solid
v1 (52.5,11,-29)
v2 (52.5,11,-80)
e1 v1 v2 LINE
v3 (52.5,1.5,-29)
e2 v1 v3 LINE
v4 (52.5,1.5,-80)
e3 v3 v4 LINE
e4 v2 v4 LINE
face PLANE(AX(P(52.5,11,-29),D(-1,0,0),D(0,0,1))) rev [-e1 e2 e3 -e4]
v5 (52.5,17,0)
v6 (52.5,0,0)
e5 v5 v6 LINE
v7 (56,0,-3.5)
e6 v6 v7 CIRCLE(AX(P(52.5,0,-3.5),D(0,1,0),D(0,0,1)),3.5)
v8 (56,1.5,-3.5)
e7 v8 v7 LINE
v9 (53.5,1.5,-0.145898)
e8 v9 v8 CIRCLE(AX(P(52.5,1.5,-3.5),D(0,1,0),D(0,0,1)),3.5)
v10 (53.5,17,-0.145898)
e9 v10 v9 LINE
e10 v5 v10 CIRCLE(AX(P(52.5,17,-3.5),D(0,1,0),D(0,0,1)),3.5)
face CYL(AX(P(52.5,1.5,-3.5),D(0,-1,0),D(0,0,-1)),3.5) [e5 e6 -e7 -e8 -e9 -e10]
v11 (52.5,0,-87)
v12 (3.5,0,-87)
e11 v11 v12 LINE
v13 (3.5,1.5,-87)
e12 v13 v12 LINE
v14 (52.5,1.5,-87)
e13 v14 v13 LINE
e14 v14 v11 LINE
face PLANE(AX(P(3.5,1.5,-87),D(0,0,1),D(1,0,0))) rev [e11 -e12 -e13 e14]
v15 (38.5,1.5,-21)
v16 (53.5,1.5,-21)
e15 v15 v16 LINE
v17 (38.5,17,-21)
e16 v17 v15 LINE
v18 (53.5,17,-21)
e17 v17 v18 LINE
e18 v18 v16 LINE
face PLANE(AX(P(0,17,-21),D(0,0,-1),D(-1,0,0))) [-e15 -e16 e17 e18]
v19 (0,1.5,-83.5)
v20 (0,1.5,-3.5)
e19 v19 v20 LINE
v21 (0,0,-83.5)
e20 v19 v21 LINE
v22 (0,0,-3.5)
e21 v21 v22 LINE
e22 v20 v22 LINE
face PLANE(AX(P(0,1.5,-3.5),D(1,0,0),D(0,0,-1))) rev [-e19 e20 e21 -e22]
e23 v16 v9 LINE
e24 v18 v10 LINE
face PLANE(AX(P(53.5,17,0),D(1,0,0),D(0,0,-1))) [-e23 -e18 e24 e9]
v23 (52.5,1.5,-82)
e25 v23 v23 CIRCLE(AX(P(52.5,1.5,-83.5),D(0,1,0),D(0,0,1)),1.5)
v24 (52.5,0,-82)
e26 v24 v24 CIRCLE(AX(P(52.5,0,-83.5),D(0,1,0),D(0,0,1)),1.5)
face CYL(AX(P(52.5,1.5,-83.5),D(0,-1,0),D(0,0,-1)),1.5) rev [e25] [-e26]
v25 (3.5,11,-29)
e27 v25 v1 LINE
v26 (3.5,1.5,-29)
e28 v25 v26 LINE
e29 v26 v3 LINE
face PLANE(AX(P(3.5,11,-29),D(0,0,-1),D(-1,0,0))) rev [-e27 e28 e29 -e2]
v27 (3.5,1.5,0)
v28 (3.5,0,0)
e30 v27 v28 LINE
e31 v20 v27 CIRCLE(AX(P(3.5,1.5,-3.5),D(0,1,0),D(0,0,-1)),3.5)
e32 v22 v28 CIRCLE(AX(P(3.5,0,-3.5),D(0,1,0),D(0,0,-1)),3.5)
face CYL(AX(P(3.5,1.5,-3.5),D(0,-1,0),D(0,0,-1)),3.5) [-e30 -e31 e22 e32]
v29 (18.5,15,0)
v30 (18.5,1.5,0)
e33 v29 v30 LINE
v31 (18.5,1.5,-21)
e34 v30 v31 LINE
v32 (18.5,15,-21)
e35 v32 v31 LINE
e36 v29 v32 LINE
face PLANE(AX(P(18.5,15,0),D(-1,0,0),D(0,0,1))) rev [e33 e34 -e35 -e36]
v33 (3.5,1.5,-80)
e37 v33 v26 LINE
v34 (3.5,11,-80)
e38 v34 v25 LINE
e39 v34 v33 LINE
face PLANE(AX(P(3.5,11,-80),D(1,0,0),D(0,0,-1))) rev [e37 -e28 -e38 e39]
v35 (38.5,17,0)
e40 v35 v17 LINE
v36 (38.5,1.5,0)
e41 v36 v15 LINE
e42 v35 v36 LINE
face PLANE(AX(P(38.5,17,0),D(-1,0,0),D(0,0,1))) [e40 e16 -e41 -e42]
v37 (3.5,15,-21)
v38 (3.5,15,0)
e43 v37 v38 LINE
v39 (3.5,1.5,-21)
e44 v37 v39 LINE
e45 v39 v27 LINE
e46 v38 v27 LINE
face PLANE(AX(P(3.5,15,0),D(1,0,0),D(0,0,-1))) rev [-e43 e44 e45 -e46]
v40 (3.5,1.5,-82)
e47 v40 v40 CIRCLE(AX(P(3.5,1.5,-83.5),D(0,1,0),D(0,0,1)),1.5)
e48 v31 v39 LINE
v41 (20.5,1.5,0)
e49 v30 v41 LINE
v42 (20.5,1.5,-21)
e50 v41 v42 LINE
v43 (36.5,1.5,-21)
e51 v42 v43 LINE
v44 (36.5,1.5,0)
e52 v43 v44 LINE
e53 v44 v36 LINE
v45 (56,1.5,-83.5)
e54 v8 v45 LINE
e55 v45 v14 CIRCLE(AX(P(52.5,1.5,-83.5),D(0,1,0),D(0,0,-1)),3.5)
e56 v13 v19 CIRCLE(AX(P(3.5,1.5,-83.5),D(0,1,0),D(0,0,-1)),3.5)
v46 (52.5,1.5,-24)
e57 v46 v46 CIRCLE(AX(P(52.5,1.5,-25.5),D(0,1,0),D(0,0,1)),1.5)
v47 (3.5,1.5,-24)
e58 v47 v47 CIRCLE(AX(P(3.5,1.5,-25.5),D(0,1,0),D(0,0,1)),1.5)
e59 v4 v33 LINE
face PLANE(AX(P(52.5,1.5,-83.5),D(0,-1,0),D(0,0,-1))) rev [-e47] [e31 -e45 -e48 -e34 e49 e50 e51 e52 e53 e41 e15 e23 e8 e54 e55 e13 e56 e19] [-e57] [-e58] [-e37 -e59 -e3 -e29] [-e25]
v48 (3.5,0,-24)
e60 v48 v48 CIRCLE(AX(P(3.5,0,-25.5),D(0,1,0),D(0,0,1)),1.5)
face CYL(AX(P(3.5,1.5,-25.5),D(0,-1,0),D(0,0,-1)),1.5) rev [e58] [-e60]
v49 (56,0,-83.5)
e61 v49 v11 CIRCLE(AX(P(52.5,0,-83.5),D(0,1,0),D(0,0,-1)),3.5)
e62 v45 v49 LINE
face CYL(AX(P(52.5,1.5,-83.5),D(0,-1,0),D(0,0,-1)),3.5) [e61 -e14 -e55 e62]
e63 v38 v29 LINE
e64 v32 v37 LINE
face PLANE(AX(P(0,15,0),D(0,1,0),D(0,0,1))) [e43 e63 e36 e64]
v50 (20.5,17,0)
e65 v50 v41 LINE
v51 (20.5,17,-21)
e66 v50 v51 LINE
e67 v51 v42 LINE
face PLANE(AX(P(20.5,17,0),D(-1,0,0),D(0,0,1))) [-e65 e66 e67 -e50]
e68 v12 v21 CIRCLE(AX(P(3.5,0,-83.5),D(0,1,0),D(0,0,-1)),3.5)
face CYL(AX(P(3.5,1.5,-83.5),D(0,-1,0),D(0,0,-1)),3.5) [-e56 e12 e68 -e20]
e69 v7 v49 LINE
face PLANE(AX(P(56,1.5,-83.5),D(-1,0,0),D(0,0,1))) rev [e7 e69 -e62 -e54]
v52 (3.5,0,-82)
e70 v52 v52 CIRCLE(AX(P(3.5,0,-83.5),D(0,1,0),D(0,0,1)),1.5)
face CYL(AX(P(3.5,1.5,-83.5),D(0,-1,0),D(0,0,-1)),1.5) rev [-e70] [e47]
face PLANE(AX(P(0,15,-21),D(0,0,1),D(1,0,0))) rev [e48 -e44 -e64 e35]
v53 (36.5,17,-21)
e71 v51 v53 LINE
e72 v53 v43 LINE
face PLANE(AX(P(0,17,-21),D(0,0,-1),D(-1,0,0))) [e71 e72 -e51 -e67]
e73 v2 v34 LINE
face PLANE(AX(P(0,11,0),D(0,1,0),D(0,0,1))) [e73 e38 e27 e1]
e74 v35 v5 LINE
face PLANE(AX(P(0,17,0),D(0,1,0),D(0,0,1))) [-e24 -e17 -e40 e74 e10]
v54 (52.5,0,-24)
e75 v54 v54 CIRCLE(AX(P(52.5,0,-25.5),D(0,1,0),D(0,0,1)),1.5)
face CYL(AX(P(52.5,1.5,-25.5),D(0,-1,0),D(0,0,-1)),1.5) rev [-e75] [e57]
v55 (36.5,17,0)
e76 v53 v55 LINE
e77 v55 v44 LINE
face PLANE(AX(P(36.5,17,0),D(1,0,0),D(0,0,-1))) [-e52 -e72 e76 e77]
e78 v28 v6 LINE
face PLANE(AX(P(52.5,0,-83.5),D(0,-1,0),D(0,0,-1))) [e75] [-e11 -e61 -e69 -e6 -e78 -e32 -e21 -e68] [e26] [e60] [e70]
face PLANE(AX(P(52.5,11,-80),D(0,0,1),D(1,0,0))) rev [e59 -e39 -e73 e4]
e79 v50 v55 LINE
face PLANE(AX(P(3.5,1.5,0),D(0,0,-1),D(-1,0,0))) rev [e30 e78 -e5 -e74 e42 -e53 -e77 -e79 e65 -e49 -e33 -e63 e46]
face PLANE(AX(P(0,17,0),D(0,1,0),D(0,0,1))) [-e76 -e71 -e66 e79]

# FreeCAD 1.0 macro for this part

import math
import FreeCAD as App
import Part
import Sketcher

V = App.Vector
Q = App.Units.Quantity

doc = App.newDocument("Part")
body = doc.addObject("PartDesign::Body", "Body")

# Sketch on XZ plane
sketch1 = body.newObject("Sketcher::SketchObject", "Sketch")
sketch1.AttachmentSupport = (doc.getObject("XZ_Plane"), [""])
sketch1.MapMode = "FlatFace"
sketch1.addGeometry(Part.LineSegment(V(3.5, 0, 0), V(52.5, 0, 0)), False)
sketch1.addGeometry(Part.ArcOfCircle(Part.Circle(V(52.5, -3.5, 0), V(0, 0, 1), 3.5), math.radians(0), math.radians(90)), False)
sketch1.addGeometry(Part.LineSegment(V(56, -3.5, 0), V(56, -83.5, 0)), False)
sketch1.addGeometry(Part.ArcOfCircle(Part.Circle(V(52.5, -83.5, 0), V(0, 0, 1), 3.5), math.radians(-90), math.radians(0)), False)
sketch1.addGeometry(Part.LineSegment(V(52.5, -87, 0), V(3.5, -87, 0)), False)
sketch1.addGeometry(Part.ArcOfCircle(Part.Circle(V(3.5, -83.5, 0), V(0, 0, 1), 3.5), math.radians(-180), math.radians(-90)), False)
sketch1.addGeometry(Part.LineSegment(V(0, -83.5, 0), V(0, -3.5, 0)), False)
sketch1.addGeometry(Part.ArcOfCircle(Part.Circle(V(3.5, -3.5, 0), V(0, 0, 1), 3.5), math.radians(90), math.radians(180)), False)
sketch1.addGeometry(Part.Circle(V(3.5, -25.5, 0), V(0, 0, 1), 1.5), False)
sketch1.addGeometry(Part.Circle(V(52.5, -25.5, 0), V(0, 0, 1), 1.5), False)
sketch1.addGeometry(Part.Circle(V(3.5, -83.5, 0), V(0, 0, 1), 1.5), False)
sketch1.addGeometry(Part.Circle(V(52.5, -83.5, 0), V(0, 0, 1), 1.5), False)
sketch1.addConstraint(Sketcher.Constraint("Tangent", 0, 2, 1, 2))
sketch1.addConstraint(Sketcher.Constraint("Tangent", 1, 1, 2, 1))
sketch1.addConstraint(Sketcher.Constraint("Tangent", 2, 2, 3, 2))
sketch1.addConstraint(Sketcher.Constraint("Tangent", 3, 1, 4, 1))
sketch1.addConstraint(Sketcher.Constraint("Tangent", 4, 2, 5, 2))
sketch1.addConstraint(Sketcher.Constraint("Tangent", 5, 1, 6, 1))
sketch1.addConstraint(Sketcher.Constraint("Tangent", 6, 2, 7, 2))
sketch1.addConstraint(Sketcher.Constraint("Tangent", 7, 1, 0, 1))
sketch1.addConstraint(Sketcher.Constraint("Horizontal", 0))
sketch1.addConstraint(Sketcher.Constraint("Vertical", 2))
sketch1.addConstraint(Sketcher.Constraint("Horizontal", 4))
sketch1.addConstraint(Sketcher.Constraint("Vertical", 6))
sketch1.addConstraint(Sketcher.Constraint("Coincident", 10, 3, 5, 3))
sketch1.addConstraint(Sketcher.Constraint("Coincident", 11, 3, 3, 3))
sketch1.addConstraint(Sketcher.Constraint("Equal", 1, 3))
sketch1.addConstraint(Sketcher.Constraint("Equal", 3, 5))
sketch1.addConstraint(Sketcher.Constraint("Equal", 5, 7))
sketch1.addConstraint(Sketcher.Constraint("Equal", 8, 9))
sketch1.addConstraint(Sketcher.Constraint("Equal", 9, 10))
sketch1.addConstraint(Sketcher.Constraint("Equal", 10, 11))
sketch1.addConstraint(Sketcher.Constraint("PointOnObject", 0, 2, -1))
sketch1.addConstraint(Sketcher.Constraint("PointOnObject", 5, 1, -2))
sketch1.addConstraint(Sketcher.Constraint("Horizontal", 8, 3, 9, 3))
sketch1.addConstraint(Sketcher.Constraint("Vertical", 7, 3, 8, 3))
sketch1.addConstraint(Sketcher.Constraint("Vertical", 3, 3, 9, 3))
sketch1.addConstraint(Sketcher.Constraint("Diameter", 8, Q("3 mm")))
sketch1.addConstraint(Sketcher.Constraint("Radius", 1, Q("3.5 mm")))
sketch1.addConstraint(Sketcher.Constraint("DistanceX", 0, 1, 0, 2, Q("49 mm")))
sketch1.addConstraint(Sketcher.Constraint("DistanceY", 2, 2, 2, 1, Q("80 mm")))
sketch1.addConstraint(Sketcher.Constraint("DistanceY", 8, 3, 7, 3, Q("22 mm")))
pad1 = body.newObject("PartDesign::Pad", "Pad")
pad1.Profile = sketch1
pad1.Length = 1.5
pad1.Reversed = True

# Sketch on XZ plane
sketch2 = body.newObject("Sketcher::SketchObject", "Sketch001")
sketch2.AttachmentSupport = (doc.getObject("XZ_Plane"), [""])
sketch2.MapMode = "FlatFace"
sketch2.AttachmentOffset = App.Placement(V(0, 0, -1.5), App.Rotation())
sketch2.addGeometry(Part.LineSegment(V(20.5, 0, 0), V(36.5, 0, 0)), False)
sketch2.addGeometry(Part.LineSegment(V(36.5, 0, 0), V(36.5, -21, 0)), False)
sketch2.addGeometry(Part.LineSegment(V(36.5, -21, 0), V(20.5, -21, 0)), False)
sketch2.addGeometry(Part.LineSegment(V(20.5, -21, 0), V(20.5, 0, 0)), False)
sketch2.addGeometry(Part.LineSegment(V(38.5, -21, 0), V(38.5, 0, 0)), False)
sketch2.addGeometry(Part.LineSegment(V(38.5, 0, 0), V(52.5, 0, 0)), False)
sketch2.addGeometry(Part.ArcOfCircle(Part.Circle(V(52.5, -3.5, 0), V(0, 0, 1), 3.5), math.radians(73.4), math.radians(90)), False)
sketch2.addGeometry(Part.LineSegment(V(53.5, -0.1, 0), V(53.5, -21, 0)), False)
sketch2.addGeometry(Part.LineSegment(V(53.5, -21, 0), V(38.5, -21, 0)), False)
sketch2.addConstraint(Sketcher.Constraint("Coincident", 0, 2, 1, 1))
sketch2.addConstraint(Sketcher.Constraint("Coincident", 1, 2, 2, 1))
sketch2.addConstraint(Sketcher.Constraint("Coincident", 2, 2, 3, 1))
sketch2.addConstraint(Sketcher.Constraint("Coincident", 3, 2, 0, 1))
sketch2.addConstraint(Sketcher.Constraint("Coincident", 4, 2, 5, 1))
sketch2.addConstraint(Sketcher.Constraint("Tangent", 5, 2, 6, 2))
sketch2.addConstraint(Sketcher.Constraint("Coincident", 6, 1, 7, 1))
sketch2.addConstraint(Sketcher.Constraint("Coincident", 7, 2, 8, 1))
sketch2.addConstraint(Sketcher.Constraint("Coincident", 8, 2, 4, 1))
sketch2.addConstraint(Sketcher.Constraint("Horizontal", 0))
sketch2.addConstraint(Sketcher.Constraint("Vertical", 1))
sketch2.addConstraint(Sketcher.Constraint("Horizontal", 2))
sketch2.addConstraint(Sketcher.Constraint("Vertical", 3))
sketch2.addConstraint(Sketcher.Constraint("Vertical", 4))
sketch2.addConstraint(Sketcher.Constraint("Horizontal", 5))
sketch2.addConstraint(Sketcher.Constraint("Vertical", 7))
sketch2.addConstraint(Sketcher.Constraint("Horizontal", 8))
sketch2.addConstraint(Sketcher.Constraint("PointOnObject", 0, 2, -1))
sketch2.addConstraint(Sketcher.Constraint("PointOnObject", 4, 2, -1))
sketch2.addConstraint(Sketcher.Constraint("Horizontal", 2, 2, 7, 2))
sketch2.addConstraint(Sketcher.Constraint("Radius", 6, Q("3.5 mm")))
sketch2.addConstraint(Sketcher.Constraint("DistanceX", 0, 1, 0, 2, Q("16 mm")))
sketch2.addConstraint(Sketcher.Constraint("DistanceX", 5, 1, 5, 2, Q("14 mm")))
sketch2.addConstraint(Sketcher.Constraint("DistanceX", 8, 2, 8, 1, Q("15 mm")))
sketch2.addConstraint(Sketcher.Constraint("DistanceY", 1, 2, 1, 1, Q("21 mm")))
sketch2.addConstraint(Sketcher.Constraint("DistanceX", 0, 2, 6, 3, Q("16 mm")))
sketch2.addConstraint(Sketcher.Constraint("DistanceX", -1, 1, 6, 3, Q("52.5 mm")))
pad2 = body.newObject("PartDesign::Pad", "Pad001")
pad2.Profile = sketch2
pad2.Length = 15.5
pad2.Reversed = True

# Sketch on XZ plane
sketch3 = body.newObject("Sketcher::SketchObject", "Sketch002")
sketch3.AttachmentSupport = (doc.getObject("XZ_Plane"), [""])
sketch3.MapMode = "FlatFace"
sketch3.AttachmentOffset = App.Placement(V(0, 0, -1.5), App.Rotation())
sketch3.addGeometry(Part.LineSegment(V(4, -80, 0), V(4, -29, 0)), False)
sketch3.addGeometry(Part.LineSegment(V(4, -29, 0), V(52, -29, 0)), False)
sketch3.addGeometry(Part.LineSegment(V(52, -29, 0), V(52, -80, 0)), False)
sketch3.addGeometry(Part.LineSegment(V(52, -80, 0), V(4, -80, 0)), False)
sketch3.addConstraint(Sketcher.Constraint("Coincident", 0, 2, 1, 1))
sketch3.addConstraint(Sketcher.Constraint("Coincident", 1, 2, 2, 1))
sketch3.addConstraint(Sketcher.Constraint("Coincident", 2, 2, 3, 1))
sketch3.addConstraint(Sketcher.Constraint("Coincident", 3, 2, 0, 1))
sketch3.addConstraint(Sketcher.Constraint("Vertical", 0))
sketch3.addConstraint(Sketcher.Constraint("Horizontal", 1))
sketch3.addConstraint(Sketcher.Constraint("Vertical", 2))
sketch3.addConstraint(Sketcher.Constraint("Horizontal", 3))
sketch3.addConstraint(Sketcher.Constraint("DistanceX", 1, 1, 1, 2, Q("49 mm")))
sketch3.addConstraint(Sketcher.Constraint("DistanceY", 0, 1, 0, 2, Q("51 mm")))
sketch3.addConstraint(Sketcher.Constraint("DistanceY", 0, 2, -1, 1, Q("29 mm")))
sketch3.addConstraint(Sketcher.Constraint("DistanceX", -1, 1, 0, 2, Q("3.5 mm")))
pad3 = body.newObject("PartDesign::Pad", "Pad002")
pad3.Profile = sketch3
pad3.Length = 9.5
pad3.Reversed = True

# Sketch on XZ plane
sketch4 = body.newObject("Sketcher::SketchObject", "Sketch003")
sketch4.AttachmentSupport = (doc.getObject("XZ_Plane"), [""])
sketch4.MapMode = "FlatFace"
sketch4.AttachmentOffset = App.Placement(V(0, 0, -1.5), App.Rotation())
sketch4.addGeometry(Part.LineSegment(V(4, -21, 0), V(4, 0, 0)), False)
sketch4.addGeometry(Part.LineSegment(V(4, 0, 0), V(18, 0, 0)), False)
sketch4.addGeometry(Part.LineSegment(V(18, 0, 0), V(18, -21, 0)), False)
sketch4.addGeometry(Part.LineSegment(V(18, -21, 0), V(4, -21, 0)), False)
sketch4.addConstraint(Sketcher.Constraint("Coincident", 0, 2, 1, 1))
sketch4.addConstraint(Sketcher.Constraint("Coincident", 1, 2, 2, 1))
sketch4.addConstraint(Sketcher.Constraint("Coincident", 2, 2, 3, 1))
sketch4.addConstraint(Sketcher.Constraint("Coincident", 3, 2, 0, 1))
sketch4.addConstraint(Sketcher.Constraint("Vertical", 0))
sketch4.addConstraint(Sketcher.Constraint("Horizontal", 1))
sketch4.addConstraint(Sketcher.Constraint("Vertical", 2))
sketch4.addConstraint(Sketcher.Constraint("Horizontal", 3))
sketch4.addConstraint(Sketcher.Constraint("PointOnObject", 0, 2, -1))
sketch4.addConstraint(Sketcher.Constraint("DistanceX", 1, 1, 1, 2, Q("15 mm")))
sketch4.addConstraint(Sketcher.Constraint("DistanceY", 0, 1, 0, 2, Q("21 mm")))
sketch4.addConstraint(Sketcher.Constraint("DistanceX", -1, 1, 0, 2, Q("3.5 mm")))
pad4 = body.newObject("PartDesign::Pad", "Pad003")
pad4.Profile = sketch4
pad4.Length = 13.5
pad4.Reversed = True

doc.recompute()
